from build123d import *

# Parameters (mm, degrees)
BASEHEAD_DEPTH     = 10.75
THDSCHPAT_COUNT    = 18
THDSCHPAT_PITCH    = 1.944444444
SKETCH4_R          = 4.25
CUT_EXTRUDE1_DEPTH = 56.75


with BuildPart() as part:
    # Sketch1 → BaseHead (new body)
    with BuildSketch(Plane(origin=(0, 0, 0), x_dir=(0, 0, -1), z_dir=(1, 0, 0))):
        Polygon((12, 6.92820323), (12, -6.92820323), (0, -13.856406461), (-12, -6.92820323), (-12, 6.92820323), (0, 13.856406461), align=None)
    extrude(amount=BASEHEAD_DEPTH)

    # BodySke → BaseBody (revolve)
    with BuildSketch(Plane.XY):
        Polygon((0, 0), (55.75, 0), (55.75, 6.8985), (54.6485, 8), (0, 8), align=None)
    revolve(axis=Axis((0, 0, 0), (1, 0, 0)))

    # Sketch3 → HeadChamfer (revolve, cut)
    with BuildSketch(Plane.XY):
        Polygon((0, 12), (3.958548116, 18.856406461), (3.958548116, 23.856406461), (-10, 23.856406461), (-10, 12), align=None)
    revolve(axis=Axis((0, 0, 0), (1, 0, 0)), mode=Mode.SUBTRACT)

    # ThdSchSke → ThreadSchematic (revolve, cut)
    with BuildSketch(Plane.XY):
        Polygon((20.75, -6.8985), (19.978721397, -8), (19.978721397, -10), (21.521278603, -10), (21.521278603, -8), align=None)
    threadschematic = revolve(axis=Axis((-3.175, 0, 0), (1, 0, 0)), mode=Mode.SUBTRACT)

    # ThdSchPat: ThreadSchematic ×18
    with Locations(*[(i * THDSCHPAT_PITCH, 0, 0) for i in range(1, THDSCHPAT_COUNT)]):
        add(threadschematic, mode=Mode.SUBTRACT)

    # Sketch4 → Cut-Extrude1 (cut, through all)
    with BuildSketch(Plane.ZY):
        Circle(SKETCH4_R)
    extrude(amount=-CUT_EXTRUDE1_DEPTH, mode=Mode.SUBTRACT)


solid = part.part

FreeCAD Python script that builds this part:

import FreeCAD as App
import Part
import Sketcher
from FreeCAD import Vector
Q = App.Units.Quantity

doc = App.newDocument("Part")
body = doc.addObject("PartDesign::Body", "Body")

sketch1 = doc.addObject("Sketcher::SketchObject", "Sketch")
body.addObject(sketch1)
sketch1.AttachmentSupport = (doc.YZ_Plane, [""])
sketch1.MapMode = "FlatFace"
sketch1.addGeometry([
    Part.LineSegment(Vector(-7, -12, 0), Vector(7, -12, 0)),
    Part.LineSegment(Vector(7, -12, 0), Vector(14, 0, 0)),
    Part.LineSegment(Vector(14, 0, 0), Vector(7, 12, 0)),
    Part.LineSegment(Vector(7, 12, 0), Vector(-7, 12, 0)),
    Part.LineSegment(Vector(-7, 12, 0), Vector(-14, 0, 0)),
    Part.LineSegment(Vector(-14, 0, 0), Vector(-7, -12, 0)),
], False)
sketch1.addConstraint([
    Sketcher.Constraint("Coincident", 0, 2, 1, 1),
    Sketcher.Constraint("Coincident", 1, 2, 2, 1),
    Sketcher.Constraint("Coincident", 2, 2, 3, 1),
    Sketcher.Constraint("Coincident", 3, 2, 4, 1),
    Sketcher.Constraint("Coincident", 4, 2, 5, 1),
    Sketcher.Constraint("Coincident", 5, 2, 0, 1),
    Sketcher.Constraint("Horizontal", 0),
    Sketcher.Constraint("Horizontal", 3),
    Sketcher.Constraint("Symmetric", 0, 2, 3, 2, -1, 1),
    Sketcher.Constraint("Symmetric", 1, 2, 4, 2, -1, 1),
    Sketcher.Constraint("PointOnObject", 1, 2, -1),
    Sketcher.Constraint("Parallel", 2, 5),
    Sketcher.Constraint("Vertical", 0, 2, 2, 2),
    Sketcher.Constraint("Angle", 1, Q("60 deg")),
    Sketcher.Constraint("DistanceY", 0, 2, -1, 1, 12.0),
    Sketcher.Constraint("DistanceX", 0, 1, 0, 2, 13.856406),
])
pad1 = doc.addObject("PartDesign::Pad", "Pad")
body.addObject(pad1)
pad1.Profile = sketch1
pad1.Length = 10.75

sketch2 = doc.addObject("Sketcher::SketchObject", "Sketch001")
body.addObject(sketch2)
sketch2.AttachmentSupport = (doc.XY_Plane, [""])
sketch2.MapMode = "FlatFace"
sketch2.addGeometry([
    Part.LineSegment(Vector(0, 0, 0), Vector(55.8, 0, 0)),
    Part.LineSegment(Vector(55.8, 0, 0), Vector(55.8, 6.9, 0)),
    Part.LineSegment(Vector(55.8, 6.9, 0), Vector(54.6, 8, 0)),
    Part.LineSegment(Vector(54.6, 8, 0), Vector(0, 8, 0)),
    Part.LineSegment(Vector(0, 8, 0), Vector(0, 0, 0)),
], False)
sketch2.addConstraint([
    Sketcher.Constraint("Coincident", 0, 2, 1, 1),
    Sketcher.Constraint("Coincident", 1, 2, 2, 1),
    Sketcher.Constraint("Coincident", 2, 2, 3, 1),
    Sketcher.Constraint("Coincident", 3, 2, 4, 1),
    Sketcher.Constraint("Coincident", 4, 2, 0, 1),
    Sketcher.Constraint("Horizontal", 0),
    Sketcher.Constraint("Vertical", 1),
    Sketcher.Constraint("Horizontal", 3),
    Sketcher.Constraint("Vertical", 4),
    Sketcher.Constraint("Coincident", 4, 2, -1, 1),
    Sketcher.Constraint("DistanceY", 4, 2, 4, 1, 8.0),
    Sketcher.Constraint("Angle", 2, Q("135 deg")),
    Sketcher.Constraint("DistanceX", 0, 1, 0, 2, 55.75),
    Sketcher.Constraint("DistanceX", 3, 2, 3, 1, 54.6485),
])
revolution = doc.addObject("PartDesign::Revolution", "Revolution")
body.addObject(revolution)
revolution.Profile = sketch2
revolution.ReferenceAxis = (sketch2, ["H_Axis"])
revolution.Angle = 360

sketch3 = doc.addObject("Sketcher::SketchObject", "Sketch002")
body.addObject(sketch3)
sketch3.AttachmentSupport = (doc.XY_Plane, [""])
sketch3.MapMode = "FlatFace"
sketch3.addGeometry([
    Part.LineSegment(Vector(0, 12, 0), Vector(4, 19, 0)),
    Part.LineSegment(Vector(4, 19, 0), Vector(4, 24, 0)),
    Part.LineSegment(Vector(4, 24, 0), Vector(-10, 24, 0)),
    Part.LineSegment(Vector(-10, 24, 0), Vector(-10, 12, 0)),
    Part.LineSegment(Vector(-10, 12, 0), Vector(0, 12, 0)),
], False)
sketch3.addConstraint([
    Sketcher.Constraint("Coincident", 0, 2, 1, 1),
    Sketcher.Constraint("Coincident", 1, 2, 2, 1),
    Sketcher.Constraint("Coincident", 2, 2, 3, 1),
    Sketcher.Constraint("Coincident", 3, 2, 4, 1),
    Sketcher.Constraint("Coincident", 4, 2, 0, 1),
    Sketcher.Constraint("Vertical", 1),
    Sketcher.Constraint("Horizontal", 2),
    Sketcher.Constraint("Vertical", 3),
    Sketcher.Constraint("Horizontal", 4),
    Sketcher.Constraint("PointOnObject", 4, 2, -2),
    Sketcher.Constraint("DistanceX", 4, 1, 4, 2, 10.0),
    Sketcher.Constraint("DistanceY", 1, 1, 1, 2, 5.0),
    Sketcher.Constraint("Angle", 0, Q("60 deg")),
    Sketcher.Constraint("DistanceY", -1, 1, 3, 2, 12.0),
    Sketcher.Constraint("DistanceX", 2, 2, 2, 1, 13.958548),
])
groove = doc.addObject("PartDesign::Groove", "Groove")
body.addObject(groove)
groove.Profile = sketch3
groove.ReferenceAxis = (sketch3, ["H_Axis"])
groove.Angle = 360

sketch4 = doc.addObject("Sketcher::SketchObject", "Sketch003")
body.addObject(sketch4)
sketch4.AttachmentSupport = (doc.XY_Plane, [""])
sketch4.MapMode = "FlatFace"
sketch4.addGeometry([
    Part.LineSegment(Vector(20.8, -6.9, 0), Vector(20, -8, 0)),
    Part.LineSegment(Vector(20, -8, 0), Vector(20, -10, 0)),
    Part.LineSegment(Vector(20, -10, 0), Vector(21.5, -10, 0)),
    Part.LineSegment(Vector(21.5, -10, 0), Vector(21.5, -8, 0)),
    Part.LineSegment(Vector(21.5, -8, 0), Vector(20.8, -6.9, 0)),
], False)
sketch4.addConstraint([
    Sketcher.Constraint("Coincident", 0, 2, 1, 1),
    Sketcher.Constraint("Coincident", 1, 2, 2, 1),
    Sketcher.Constraint("Coincident", 2, 2, 3, 1),
    Sketcher.Constraint("Coincident", 3, 2, 4, 1),
    Sketcher.Constraint("Coincident", 4, 2, 0, 1),
    Sketcher.Constraint("Vertical", 1),
    Sketcher.Constraint("Horizontal", 2),
    Sketcher.Constraint("Vertical", 3),
    Sketcher.Constraint("Horizontal", 0, 2, 3, 2),
    Sketcher.Constraint("Equal", 0, 4),
    Sketcher.Constraint("DistanceY", 1, 2, 1, 1, 2.0),
    Sketcher.Constraint("Angle", 0, Q("-125 deg")),
    Sketcher.Constraint("DistanceY", 0, 2, -1, 1, 8.0),
    Sketcher.Constraint("DistanceX", -1, 1, 4, 2, 20.75),
    Sketcher.Constraint("DistanceY", 4, 2, -1, 1, 6.8985),
])
groove2 = doc.addObject("PartDesign::Groove", "Groove001")
body.addObject(groove2)
groove2.Profile = sketch4
groove2.ReferenceAxis = (sketch4, ["H_Axis"])
groove2.Angle = 360
doc.recompute()

linearpattern = doc.addObject("PartDesign::LinearPattern", "LinearPattern")
body.addObject(linearpattern)
linearpattern.Originals = [groove2]
linearpattern.Direction = (doc.X_Axis, [""])
linearpattern.Mode = "offset"
linearpattern.Offset = 1.944444
linearpattern.Occurrences = 18
body.Tip = linearpattern

sketch5 = doc.addObject("Sketcher::SketchObject", "Sketch004")
body.addObject(sketch5)
sketch5.AttachmentSupport = (doc.YZ_Plane, [""])
sketch5.MapMode = "FlatFace"
sketch5.addGeometry(Part.Circle(Vector(0, 0, 0), Vector(0, 0, 1), 4.2), False)
sketch5.addConstraint([
    Sketcher.Constraint("Coincident", 0, 3, -1, 1),
    Sketcher.Constraint("Diameter", 0, 8.5),
])
pocket1 = doc.addObject("PartDesign::Pocket", "Pocket")
body.addObject(pocket1)
pocket1.Profile = sketch5
pocket1.Type = "ThroughAll"
pocket1.Reversed = True

doc.recompute()
